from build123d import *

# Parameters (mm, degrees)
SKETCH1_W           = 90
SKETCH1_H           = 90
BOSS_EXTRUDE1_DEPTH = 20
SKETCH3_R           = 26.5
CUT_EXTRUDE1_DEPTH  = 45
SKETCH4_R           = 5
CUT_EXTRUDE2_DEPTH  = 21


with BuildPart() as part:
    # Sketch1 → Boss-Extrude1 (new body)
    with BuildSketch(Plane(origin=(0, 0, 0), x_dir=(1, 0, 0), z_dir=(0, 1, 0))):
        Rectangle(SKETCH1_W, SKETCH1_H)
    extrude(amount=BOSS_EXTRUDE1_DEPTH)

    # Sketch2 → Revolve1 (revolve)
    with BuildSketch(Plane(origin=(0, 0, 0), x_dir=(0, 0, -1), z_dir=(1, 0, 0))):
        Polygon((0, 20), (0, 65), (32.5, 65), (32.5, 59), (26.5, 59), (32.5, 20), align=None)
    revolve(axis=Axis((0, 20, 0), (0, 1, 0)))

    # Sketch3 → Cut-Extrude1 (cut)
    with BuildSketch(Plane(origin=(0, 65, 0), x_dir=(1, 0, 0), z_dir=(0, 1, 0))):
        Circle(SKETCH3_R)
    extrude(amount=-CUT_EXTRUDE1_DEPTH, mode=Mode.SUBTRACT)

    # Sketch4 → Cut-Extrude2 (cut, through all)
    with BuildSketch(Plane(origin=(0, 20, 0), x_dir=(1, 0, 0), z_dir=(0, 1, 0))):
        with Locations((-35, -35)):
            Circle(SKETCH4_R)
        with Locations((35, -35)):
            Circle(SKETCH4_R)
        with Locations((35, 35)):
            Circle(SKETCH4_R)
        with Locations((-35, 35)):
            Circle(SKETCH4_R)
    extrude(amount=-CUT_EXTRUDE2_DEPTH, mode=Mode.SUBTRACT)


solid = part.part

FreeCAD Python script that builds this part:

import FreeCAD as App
import Part
import Sketcher


def add_polygon(sketch, points):
    """Adds a closed chain of lines whose ends are joined by coincident constraints."""
    first, n = sketch.GeometryCount, len(points)
    for a, b in zip(points, points[1:] + points[:1]):
        sketch.addGeometry(Part.LineSegment(App.Vector(*a, 0), App.Vector(*b, 0)), False)
    for i in range(n):
        sketch.addConstraint(Sketcher.Constraint("Coincident", first + i, 2, first + (i + 1) % n, 1))

doc = App.newDocument("Part")
body = doc.addObject("PartDesign::Body", "Body")
body.AllowCompound = True

# Sketch on XZ plane
sketch1 = doc.addObject("Sketcher::SketchObject", "Sketch")
body.addObject(sketch1)
sketch1.AttachmentSupport = (doc.XZ_Plane, [""])
sketch1.MapMode = "FlatFace"
add_polygon(sketch1, [(-45, -45), (-45, 45), (45, 45), (45, -45)])  # lines 0-3
sketch1.addConstraint(Sketcher.Constraint("Vertical", 0))
sketch1.addConstraint(Sketcher.Constraint("Horizontal", 1))
sketch1.addConstraint(Sketcher.Constraint("Vertical", 2))
sketch1.addConstraint(Sketcher.Constraint("Horizontal", 3))
sketch1.addConstraint(Sketcher.Constraint("Symmetric", 0, 2, 2, 2, -1, 1))
sketch1.addConstraint(Sketcher.Constraint("Equal", 3, 0))
sketch1.addConstraint(Sketcher.Constraint("DistanceX", 1, 1, 1, 2, 90.0))
pad1 = doc.addObject("PartDesign::Pad", "Pad")
body.addObject(pad1)
pad1.Profile = sketch1
pad1.Length = 20
pad1.Reversed = True

# Sketch on YZ plane
sketch2 = doc.addObject("Sketcher::SketchObject", "Sketch001")
body.addObject(sketch2)
sketch2.AttachmentSupport = (doc.YZ_Plane, [""])
sketch2.MapMode = "FlatFace"
add_polygon(sketch2, [(65, 0), (20, 0), (20, -32), (59, -26), (59, -32), (65, -32)])  # lines 0-5
sketch2.addConstraint(Sketcher.Constraint("Horizontal", 0))
sketch2.addConstraint(Sketcher.Constraint("Vertical", 1))
sketch2.addConstraint(Sketcher.Constraint("Vertical", 3))
sketch2.addConstraint(Sketcher.Constraint("Horizontal", 4))
sketch2.addConstraint(Sketcher.Constraint("Vertical", 5))
sketch2.addConstraint(Sketcher.Constraint("PointOnObject", 0, 2, -1))
sketch2.addConstraint(Sketcher.Constraint("Horizontal", 1, 2, 3, 2))
sketch2.addConstraint(Sketcher.Constraint("Equal", 4, 3))
sketch2.addConstraint(Sketcher.Constraint("DistanceX", 0, 2, 0, 1, 45.0))
sketch2.addConstraint(Sketcher.Constraint("DistanceX", 4, 1, 4, 2, 6.0))
sketch2.addConstraint(Sketcher.Constraint("DistanceY", 1, 2, 1, 1, 32.5))
sketch2.addConstraint(Sketcher.Constraint("DistanceX", -1, 1, 0, 2, 20.0))
revolution = doc.addObject("PartDesign::Revolution", "Revolution")
body.addObject(revolution)
revolution.Profile = sketch2
revolution.ReferenceAxis = (sketch2, ["H_Axis"])
revolution.Angle = 360

# Sketch on XZ plane
sketch3 = doc.addObject("Sketcher::SketchObject", "Sketch002")
body.addObject(sketch3)
sketch3.AttachmentSupport = (doc.XZ_Plane, [""])
sketch3.MapMode = "FlatFace"
sketch3.AttachmentOffset = App.Placement(App.Vector(0, 0, -65), App.Rotation())
sketch3.addGeometry(Part.Circle(App.Vector(0, 0, 0), App.Vector(0, 0, 1), 26), False)
sketch3.addConstraint(Sketcher.Constraint("Coincident", 0, 3, -1, 1))
sketch3.addConstraint(Sketcher.Constraint("Diameter", 0, 53.0))
pocket1 = doc.addObject("PartDesign::Pocket", "Pocket")
body.addObject(pocket1)
pocket1.Profile = sketch3
pocket1.Length = 45
pocket1.Reversed = True

# Sketch on XZ plane
sketch4 = doc.addObject("Sketcher::SketchObject", "Sketch003")
body.addObject(sketch4)
sketch4.AttachmentSupport = (doc.XZ_Plane, [""])
sketch4.MapMode = "FlatFace"
sketch4.AttachmentOffset = App.Placement(App.Vector(0, 0, -20), App.Rotation())
sketch4.addGeometry(Part.Circle(App.Vector(-35, 35, 0), App.Vector(0, 0, 1), 5), False)
sketch4.addGeometry(Part.Circle(App.Vector(35, 35, 0), App.Vector(0, 0, 1), 5), False)
sketch4.addGeometry(Part.Circle(App.Vector(35, -35, 0), App.Vector(0, 0, 1), 5), False)
sketch4.addGeometry(Part.Circle(App.Vector(-35, -35, 0), App.Vector(0, 0, 1), 5), False)
sketch4.addConstraint(Sketcher.Constraint("Equal", 0, 1))
sketch4.addConstraint(Sketcher.Constraint("Equal", 1, 2))
sketch4.addConstraint(Sketcher.Constraint("Equal", 2, 3))
sketch4.addConstraint(Sketcher.Constraint("Symmetric", 0, 3, 2, 3, -1, 1))
sketch4.addConstraint(Sketcher.Constraint("Symmetric", 1, 3, 3, 3, -1, 1))
sketch4.addConstraint(Sketcher.Constraint("Symmetric", 0, 3, 1, 3, -2))
sketch4.addConstraint(Sketcher.Constraint("Diameter", 0, 10.0))
sketch4.addConstraint(Sketcher.Constraint("DistanceX", 0, 3, -1, 1, 35.0))
sketch4.addConstraint(Sketcher.Constraint("DistanceY", -1, 1, 0, 3, 35.0))
pocket2 = doc.addObject("PartDesign::Pocket", "Pocket001")
body.addObject(pocket2)
pocket2.Profile = sketch4
pocket2.Type = "ThroughAll"
pocket2.Reversed = True

doc.recompute()
